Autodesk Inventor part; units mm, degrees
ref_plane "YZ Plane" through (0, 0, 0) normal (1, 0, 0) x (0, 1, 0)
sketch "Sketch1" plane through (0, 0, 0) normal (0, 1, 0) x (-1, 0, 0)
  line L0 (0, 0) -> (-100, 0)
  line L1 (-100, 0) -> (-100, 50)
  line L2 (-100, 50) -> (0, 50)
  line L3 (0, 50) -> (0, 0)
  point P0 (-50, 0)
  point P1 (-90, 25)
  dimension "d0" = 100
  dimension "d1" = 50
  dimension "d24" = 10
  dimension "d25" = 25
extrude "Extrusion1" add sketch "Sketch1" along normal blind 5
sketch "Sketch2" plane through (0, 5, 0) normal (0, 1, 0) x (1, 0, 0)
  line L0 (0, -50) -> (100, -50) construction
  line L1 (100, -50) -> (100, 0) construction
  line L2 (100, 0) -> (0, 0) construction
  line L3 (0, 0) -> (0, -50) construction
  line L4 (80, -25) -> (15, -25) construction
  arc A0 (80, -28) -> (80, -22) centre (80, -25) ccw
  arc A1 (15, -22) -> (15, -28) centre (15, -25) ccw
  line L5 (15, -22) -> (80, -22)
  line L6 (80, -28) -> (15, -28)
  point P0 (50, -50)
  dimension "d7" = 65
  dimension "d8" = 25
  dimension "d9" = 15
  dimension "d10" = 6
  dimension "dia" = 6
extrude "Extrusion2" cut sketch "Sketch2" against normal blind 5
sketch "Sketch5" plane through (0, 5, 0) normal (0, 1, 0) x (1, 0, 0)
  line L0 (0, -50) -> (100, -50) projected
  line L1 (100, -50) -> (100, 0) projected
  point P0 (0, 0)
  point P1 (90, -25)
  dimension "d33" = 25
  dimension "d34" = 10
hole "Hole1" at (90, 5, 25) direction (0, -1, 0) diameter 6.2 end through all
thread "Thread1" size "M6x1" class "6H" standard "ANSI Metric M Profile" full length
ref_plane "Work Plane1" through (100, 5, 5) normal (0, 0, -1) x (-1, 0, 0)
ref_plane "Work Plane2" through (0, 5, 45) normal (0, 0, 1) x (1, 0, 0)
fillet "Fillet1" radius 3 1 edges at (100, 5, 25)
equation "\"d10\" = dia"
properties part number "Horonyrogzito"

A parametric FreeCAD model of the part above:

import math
import FreeCAD as App
import Part
import Sketcher


def edges_at(feature, points):
    """Names of the edges that pass closest to the given points."""
    edges = feature.Shape.Edges
    near = lambda p: min(range(len(edges)), key=lambda i: edges[i].distToShape(Part.Vertex(*p))[0])
    return sorted({f"Edge{near(p) + 1}" for p in points})


def add_polygon(sketch, points):
    """Adds a closed chain of lines whose ends are joined by coincident constraints."""
    first, n = sketch.GeometryCount, len(points)
    for a, b in zip(points, points[1:] + points[:1]):
        sketch.addGeometry(Part.LineSegment(App.Vector(*a, 0), App.Vector(*b, 0)), False)
    for i in range(n):
        sketch.addConstraint(Sketcher.Constraint("Coincident", first + i, 2, first + (i + 1) % n, 1))

doc = App.newDocument("Part")
body = doc.addObject("PartDesign::Body", "Body")

# Sketch on XZ plane
sketch1 = doc.addObject("Sketcher::SketchObject", "Sketch")
body.addObject(sketch1)
sketch1.AttachmentSupport = (doc.XZ_Plane, [""])
sketch1.MapMode = "FlatFace"
add_polygon(sketch1, [(100, 0), (0, 0), (0, 50), (100, 50)])  # lines 0-3
sketch1.addConstraint(Sketcher.Constraint("Horizontal", 0))
sketch1.addConstraint(Sketcher.Constraint("Vertical", 1))
sketch1.addConstraint(Sketcher.Constraint("Horizontal", 2))
sketch1.addConstraint(Sketcher.Constraint("Vertical", 3))
sketch1.addConstraint(Sketcher.Constraint("Coincident", 0, 2, -1, 1))
sketch1.addConstraint(Sketcher.Constraint("DistanceX", 0, 2, 0, 1, 100.0))
sketch1.addConstraint(Sketcher.Constraint("DistanceY", 1, 1, 1, 2, 50.0))
pad1 = doc.addObject("PartDesign::Pad", "Pad")
body.addObject(pad1)
pad1.Profile = sketch1
pad1.Length = 5
pad1.Reversed = True

# Sketch on XZ plane
sketch2 = doc.addObject("Sketcher::SketchObject", "Sketch001")
body.addObject(sketch2)
sketch2.AttachmentSupport = (doc.XZ_Plane, [""])
sketch2.MapMode = "FlatFace"
sketch2.AttachmentOffset = App.Placement(App.Vector(0, 0, -5), App.Rotation())
sketch2.addGeometry(Part.LineSegment(App.Vector(15, 28, 0), App.Vector(80, 28, 0)), False)
sketch2.addGeometry(Part.ArcOfCircle(Part.Circle(App.Vector(80, 25, 0), App.Vector(0, 0, 1), 3), math.radians(-90), math.radians(90)), False)
sketch2.addGeometry(Part.LineSegment(App.Vector(80, 22, 0), App.Vector(15, 22, 0)), False)
sketch2.addGeometry(Part.ArcOfCircle(Part.Circle(App.Vector(15, 25, 0), App.Vector(0, 0, 1), 3), math.radians(90), math.radians(270)), False)
sketch2.addConstraint(Sketcher.Constraint("Tangent", 0, 2, 1, 2))
sketch2.addConstraint(Sketcher.Constraint("Tangent", 1, 1, 2, 1))
sketch2.addConstraint(Sketcher.Constraint("Tangent", 2, 2, 3, 2))
sketch2.addConstraint(Sketcher.Constraint("Tangent", 3, 1, 0, 1))
sketch2.addConstraint(Sketcher.Constraint("Horizontal", 0))
sketch2.addConstraint(Sketcher.Constraint("Horizontal", 2))
sketch2.addConstraint(Sketcher.Constraint("Radius", 1, 3.0))
sketch2.addConstraint(Sketcher.Constraint("DistanceX", 0, 1, 0, 2, 65.0))
sketch2.addConstraint(Sketcher.Constraint("DistanceY", -1, 1, 1, 3, 25.0))
sketch2.addConstraint(Sketcher.Constraint("DistanceX", -1, 1, 3, 3, 15.0))
pocket1 = doc.addObject("PartDesign::Pocket", "Pocket")
body.addObject(pocket1)
pocket1.Profile = sketch2
pocket1.Length = 5
pocket1.Reversed = True

# Sketch on XZ plane
sketch3 = doc.addObject("Sketcher::SketchObject", "Sketch002")
body.addObject(sketch3)
sketch3.AttachmentSupport = (doc.XZ_Plane, [""])
sketch3.MapMode = "FlatFace"
sketch3.AttachmentOffset = App.Placement(App.Vector(0, 0, -5), App.Rotation())
sketch3.addGeometry(Part.Circle(App.Vector(90, 25, 0), App.Vector(0, 0, 1), 3.1), False)
sketch3.addConstraint(Sketcher.Constraint("Diameter", 0, 6.2))
sketch3.addConstraint(Sketcher.Constraint("DistanceX", -1, 1, 0, 3, 90.0))
sketch3.addConstraint(Sketcher.Constraint("DistanceY", -1, 1, 0, 3, 25.0))
doc.recompute()
hole = doc.addObject("PartDesign::Hole", "Hole")
body.addObject(hole)
hole.Profile = sketch3
hole.ThreadType = "None"
hole.Diameter = 6.2
hole.DepthType = "ThroughAll"
hole.Reversed = True
doc.recompute()

fillet = doc.addObject("PartDesign::Fillet", "Fillet")
body.addObject(fillet)
fillet.Base = (hole, edges_at(hole, [(100, 5, 25)]))
fillet.Radius = 3

doc.recompute()
